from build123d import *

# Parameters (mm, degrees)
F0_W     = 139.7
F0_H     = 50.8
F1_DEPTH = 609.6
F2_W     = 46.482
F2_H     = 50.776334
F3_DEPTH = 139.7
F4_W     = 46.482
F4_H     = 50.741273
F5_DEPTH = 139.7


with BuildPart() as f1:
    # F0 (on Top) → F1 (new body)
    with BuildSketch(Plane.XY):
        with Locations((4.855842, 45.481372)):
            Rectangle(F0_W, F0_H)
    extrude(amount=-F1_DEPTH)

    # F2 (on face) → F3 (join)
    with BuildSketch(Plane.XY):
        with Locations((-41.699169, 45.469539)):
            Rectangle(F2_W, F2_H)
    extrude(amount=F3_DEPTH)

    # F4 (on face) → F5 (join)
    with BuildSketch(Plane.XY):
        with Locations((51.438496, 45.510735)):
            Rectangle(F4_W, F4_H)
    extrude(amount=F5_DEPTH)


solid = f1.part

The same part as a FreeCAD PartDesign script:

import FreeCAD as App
import Part
import Sketcher

V = App.Vector
Q = App.Units.Quantity


def add_polygon(sketch, points):
    """Adds a closed chain of lines whose ends are joined by coincident constraints."""
    first, n = sketch.GeometryCount, len(points)
    for a, b in zip(points, points[1:] + points[:1]):
        sketch.addGeometry(Part.LineSegment(App.Vector(*a, 0), App.Vector(*b, 0)), False)
    for i in range(n):
        sketch.addConstraint(Sketcher.Constraint("Coincident", first + i, 2, first + (i + 1) % n, 1))

doc = App.newDocument("Part")
params = doc.addObject("Spreadsheet::Sheet", "Params")
for row, (alias, value) in enumerate([
    ("sketch1_height", "2 in"),
    ("sketch1_width", "5.5 in"),
    ("pad1_length", "24 in"),
    ("sketch2_width", "1.83 in"),
    ("pad2_length", "5.5 in"),
    ("sketch3_width", "1.83 in"),
    ("pad3_length", "5.5 in"),
], start=1):
    params.set(f"A{row}", alias)
    params.set(f"B{row}", "=" + value)
    params.setAlias(f"B{row}", alias)

body = doc.addObject("PartDesign::Body", "Body")

# Sketch on XY plane
sketch1 = doc.addObject("Sketcher::SketchObject", "Sketch")
body.addObject(sketch1)
sketch1.AttachmentSupport = (doc.XY_Plane, [""])
sketch1.MapMode = "FlatFace"
add_polygon(sketch1, [(-65, 71), (-65, 20), (75, 20), (75, 71)])  # lines 0-3
sketch1.addConstraint(Sketcher.Constraint("Vertical", 0))
sketch1.addConstraint(Sketcher.Constraint("Horizontal", 1))
sketch1.addConstraint(Sketcher.Constraint("Vertical", 2))
sketch1.addConstraint(Sketcher.Constraint("Horizontal", 3))
sketch1.addConstraint(Sketcher.Constraint("DistanceY", 0, 2, 0, 1, Q("2 in")))
sketch1.addConstraint(Sketcher.Constraint("DistanceX", 1, 1, 1, 2, Q("5.5 in")))
sketch1.addConstraint(Sketcher.Constraint("DistanceX", 0, 2, -1, 1, 64.994158))
sketch1.addConstraint(Sketcher.Constraint("DistanceY", -1, 1, 2, 2, 70.881372))
sketch1.setExpression("Constraints[8]", "Params.sketch1_height")
sketch1.setExpression("Constraints[9]", "Params.sketch1_width")
pad1 = doc.addObject("PartDesign::Pad", "Pad")
body.addObject(pad1)
pad1.Profile = sketch1
pad1.setExpression("Length", "Params.pad1_length")
pad1.Reversed = True

# Sketch on XY plane
sketch2 = doc.addObject("Sketcher::SketchObject", "Sketch001")
body.addObject(sketch2)
sketch2.AttachmentSupport = (doc.XY_Plane, [""])
sketch2.MapMode = "FlatFace"
add_polygon(sketch2, [(-65, 71), (-65, 20), (-18, 20), (-18, 71)])  # lines 0-3
sketch2.addConstraint(Sketcher.Constraint("Vertical", 0))
sketch2.addConstraint(Sketcher.Constraint("Horizontal", 1))
sketch2.addConstraint(Sketcher.Constraint("Vertical", 2))
sketch2.addConstraint(Sketcher.Constraint("Horizontal", 3))
sketch2.addConstraint(Sketcher.Constraint("DistanceX", 1, 1, 1, 2, Q("1.83 in")))
sketch2.addConstraint(Sketcher.Constraint("DistanceY", 0, 2, 0, 1, 50.776334))
sketch2.addConstraint(Sketcher.Constraint("DistanceX", 0, 2, -1, 1, 64.940169))
sketch2.addConstraint(Sketcher.Constraint("DistanceY", -1, 1, 0, 2, 20.081372))
sketch2.setExpression("Constraints[8]", "Params.sketch2_width")
pad2 = doc.addObject("PartDesign::Pad", "Pad001")
body.addObject(pad2)
pad2.Profile = sketch2
pad2.setExpression("Length", "Params.pad2_length")

# Sketch on XY plane
sketch3 = doc.addObject("Sketcher::SketchObject", "Sketch002")
body.addObject(sketch3)
sketch3.AttachmentSupport = (doc.XY_Plane, [""])
sketch3.MapMode = "FlatFace"
add_polygon(sketch3, [(28, 71), (28, 20), (75, 20), (75, 71)])  # lines 0-3
sketch3.addConstraint(Sketcher.Constraint("Vertical", 0))
sketch3.addConstraint(Sketcher.Constraint("Horizontal", 1))
sketch3.addConstraint(Sketcher.Constraint("Vertical", 2))
sketch3.addConstraint(Sketcher.Constraint("Horizontal", 3))
sketch3.addConstraint(Sketcher.Constraint("DistanceX", 1, 1, 1, 2, Q("1.83 in")))
sketch3.addConstraint(Sketcher.Constraint("DistanceY", -1, 1, 0, 2, 20.140099))
sketch3.addConstraint(Sketcher.Constraint("DistanceY", 0, 2, 0, 1, 50.741273))
sketch3.addConstraint(Sketcher.Constraint("DistanceX", -1, 1, 0, 2, 28.197496))
sketch3.setExpression("Constraints[8]", "Params.sketch3_width")
pad3 = doc.addObject("PartDesign::Pad", "Pad002")
body.addObject(pad3)
pad3.Profile = sketch3
pad3.setExpression("Length", "Params.pad3_length")

doc.recompute()
